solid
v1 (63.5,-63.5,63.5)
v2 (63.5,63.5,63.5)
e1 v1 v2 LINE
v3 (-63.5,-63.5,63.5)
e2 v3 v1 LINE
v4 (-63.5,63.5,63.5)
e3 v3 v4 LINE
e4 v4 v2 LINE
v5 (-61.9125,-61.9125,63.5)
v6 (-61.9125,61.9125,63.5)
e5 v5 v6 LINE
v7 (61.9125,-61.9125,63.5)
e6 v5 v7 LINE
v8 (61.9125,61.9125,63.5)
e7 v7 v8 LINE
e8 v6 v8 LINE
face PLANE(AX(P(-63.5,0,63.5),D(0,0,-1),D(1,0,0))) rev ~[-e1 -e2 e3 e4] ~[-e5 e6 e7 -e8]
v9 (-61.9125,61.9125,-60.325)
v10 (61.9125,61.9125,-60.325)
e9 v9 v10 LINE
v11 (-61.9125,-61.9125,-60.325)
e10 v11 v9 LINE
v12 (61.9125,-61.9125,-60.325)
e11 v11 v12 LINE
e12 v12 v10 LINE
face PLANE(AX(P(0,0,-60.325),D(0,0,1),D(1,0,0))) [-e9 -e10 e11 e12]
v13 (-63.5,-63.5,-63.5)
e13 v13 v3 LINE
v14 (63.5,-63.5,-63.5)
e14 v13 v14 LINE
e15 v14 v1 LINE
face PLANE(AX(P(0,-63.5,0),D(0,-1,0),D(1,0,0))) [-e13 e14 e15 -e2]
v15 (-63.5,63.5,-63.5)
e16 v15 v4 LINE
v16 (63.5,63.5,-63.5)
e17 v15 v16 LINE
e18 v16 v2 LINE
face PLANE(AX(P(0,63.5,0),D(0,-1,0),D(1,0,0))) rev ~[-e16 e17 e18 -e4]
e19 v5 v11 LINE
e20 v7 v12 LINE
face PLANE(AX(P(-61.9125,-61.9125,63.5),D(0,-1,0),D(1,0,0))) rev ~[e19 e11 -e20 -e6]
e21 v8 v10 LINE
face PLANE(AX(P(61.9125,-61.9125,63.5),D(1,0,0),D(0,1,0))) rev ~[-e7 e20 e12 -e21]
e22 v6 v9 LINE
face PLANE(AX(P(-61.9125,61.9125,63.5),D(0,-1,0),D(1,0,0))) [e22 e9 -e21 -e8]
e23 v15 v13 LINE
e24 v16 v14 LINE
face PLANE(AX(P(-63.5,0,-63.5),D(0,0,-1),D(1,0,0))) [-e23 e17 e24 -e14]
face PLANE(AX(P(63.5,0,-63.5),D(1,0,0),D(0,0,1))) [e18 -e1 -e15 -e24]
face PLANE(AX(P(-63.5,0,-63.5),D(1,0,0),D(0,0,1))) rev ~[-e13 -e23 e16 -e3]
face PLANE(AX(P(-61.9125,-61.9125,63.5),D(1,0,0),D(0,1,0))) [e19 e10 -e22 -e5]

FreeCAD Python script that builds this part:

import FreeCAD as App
import Part
import Sketcher
Q = App.Units.Quantity


def add_polygon(sketch, points):
    """Adds a closed chain of lines whose ends are joined by coincident constraints."""
    first, n = sketch.GeometryCount, len(points)
    for a, b in zip(points, points[1:] + points[:1]):
        sketch.addGeometry(Part.LineSegment(App.Vector(*a, 0), App.Vector(*b, 0)), False)
    for i in range(n):
        sketch.addConstraint(Sketcher.Constraint("Coincident", first + i, 2, first + (i + 1) % n, 1))

doc = App.newDocument("Part")
params = doc.addObject("Spreadsheet::Sheet", "Params")
for row, (alias, value) in enumerate([
    ("sketch1_width", "5 in"),
    ("pad1_length", "5 in"),
    ("sketch2_width", "4.875 in"),
    ("pocket1_length", "4.875 in"),
], start=1):
    params.set(f"A{row}", alias)
    params.set(f"B{row}", "=" + value)
    params.setAlias(f"B{row}", alias)

body = doc.addObject("PartDesign::Body", "Body")

sketch1 = body.newObject("Sketcher::SketchObject", "Sketch")
sketch1.AttachmentSupport = (doc.getObject("XZ_Plane"), [""])
sketch1.MapMode = "FlatFace"
add_polygon(sketch1, [(-64, 64), (-64, -64), (64, -64), (64, 64)])
sketch1.addConstraint([
    Sketcher.Constraint("Vertical", 0),
    Sketcher.Constraint("Horizontal", 1),
    Sketcher.Constraint("Vertical", 2),
    Sketcher.Constraint("Horizontal", 3),
    Sketcher.Constraint("Symmetric", 0, 2, 2, 2, -1, 1),
    Sketcher.Constraint("Equal", 3, 0),
    Sketcher.Constraint("DistanceX", 1, 1, 1, 2, Q("5 in")),
])
sketch1.setExpression("Constraints[10]", "Params.sketch1_width")
pad1 = body.newObject("PartDesign::Pad", "Pad")
pad1.Profile = sketch1
pad1.setExpression("Length", "Params.pad1_length")
pad1.Midplane = True

sketch2 = body.newObject("Sketcher::SketchObject", "Sketch001")
sketch2.AttachmentSupport = (doc.getObject("XY_Plane"), [""])
sketch2.MapMode = "FlatFace"
sketch2.AttachmentOffset = App.Placement(App.Vector(0, 0, 2.5 * 25.4), App.Rotation())
add_polygon(sketch2, [(-62, 62), (-62, -62), (62, -62), (62, 62)])
sketch2.addConstraint([
    Sketcher.Constraint("Vertical", 0),
    Sketcher.Constraint("Horizontal", 1),
    Sketcher.Constraint("Vertical", 2),
    Sketcher.Constraint("Horizontal", 3),
    Sketcher.Constraint("Symmetric", 0, 2, 2, 2, -1, 1),
    Sketcher.Constraint("Equal", 3, 0),
    Sketcher.Constraint("DistanceX", 1, 1, 1, 2, Q("4.875 in")),
])
sketch2.setExpression("Constraints[10]", "Params.sketch2_width")
pocket1 = body.newObject("PartDesign::Pocket", "Pocket")
pocket1.Profile = sketch2
pocket1.setExpression("Length", "Params.pocket1_length")

doc.recompute()
